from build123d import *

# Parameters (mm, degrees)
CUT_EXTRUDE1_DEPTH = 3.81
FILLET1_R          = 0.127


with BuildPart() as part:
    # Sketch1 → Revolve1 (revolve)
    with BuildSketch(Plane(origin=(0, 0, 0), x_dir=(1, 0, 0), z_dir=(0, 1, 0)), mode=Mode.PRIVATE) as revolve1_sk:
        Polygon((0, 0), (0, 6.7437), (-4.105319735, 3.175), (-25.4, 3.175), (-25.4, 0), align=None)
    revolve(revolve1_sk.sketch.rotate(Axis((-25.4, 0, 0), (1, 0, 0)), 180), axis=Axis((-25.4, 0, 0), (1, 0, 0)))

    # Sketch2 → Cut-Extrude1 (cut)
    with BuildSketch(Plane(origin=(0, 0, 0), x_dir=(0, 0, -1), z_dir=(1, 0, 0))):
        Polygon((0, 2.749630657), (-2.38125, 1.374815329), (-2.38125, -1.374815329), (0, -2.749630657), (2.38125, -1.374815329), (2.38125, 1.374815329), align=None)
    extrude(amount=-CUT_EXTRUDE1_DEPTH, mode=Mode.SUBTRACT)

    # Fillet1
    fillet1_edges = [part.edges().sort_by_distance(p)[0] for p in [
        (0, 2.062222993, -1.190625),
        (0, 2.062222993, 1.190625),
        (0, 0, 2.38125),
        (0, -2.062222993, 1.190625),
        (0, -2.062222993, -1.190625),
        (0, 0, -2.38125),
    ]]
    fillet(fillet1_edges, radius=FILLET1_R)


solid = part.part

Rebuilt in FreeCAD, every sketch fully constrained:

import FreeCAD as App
import Part
import Sketcher
from FreeCAD import Vector
Q = App.Units.Quantity


def edges_at(feature, points):
    """Names of the edges that pass closest to the given points."""
    edges = feature.Shape.Edges
    near = lambda p: min(range(len(edges)), key=lambda i: edges[i].distToShape(Part.Vertex(*p))[0])
    return sorted({f"Edge{near(p) + 1}" for p in points})

doc = App.newDocument("Part")
params = doc.addObject("Spreadsheet::Sheet", "Params")
for row, (alias, value) in enumerate([
    ("sketch1_width", "1 in"),
    ("sketch1_height", "0.125 in"),
    ("revolution_angle", "360 deg"),
    ("pocket1_length", "0.15 in"),
    ("fillet_radius", "0.005 in"),
], start=1):
    params.set(f"A{row}", alias)
    params.set(f"B{row}", "=" + value)
    params.setAlias(f"B{row}", alias)

body = doc.addObject("PartDesign::Body", "Body")

# Sketch on XZ plane
sketch1 = body.newObject("Sketcher::SketchObject", "Sketch")
sketch1.AttachmentSupport = (doc.getObject("XZ_Plane"), [""])
sketch1.MapMode = "FlatFace"
sketch1.addGeometry([
    Part.LineSegment(Vector(0, 0, 0), Vector(0, -6.7437, 0)),  # 0
    Part.LineSegment(Vector(0, -6.7437, 0), Vector(-4.10532, -3.175, 0)),  # 1
    Part.LineSegment(Vector(-4.10532, -3.175, 0), Vector(-25.4, -3.175, 0)),  # 2
    Part.LineSegment(Vector(-25.4, -3.175, 0), Vector(-25.4, 0, 0)),  # 3
    Part.LineSegment(Vector(-25.4, 0, 0), Vector(0, 0, 0)),  # 4
], False)
sketch1.addConstraint([
    Sketcher.Constraint("Coincident", 0, 2, 1, 1),
    Sketcher.Constraint("Coincident", 1, 2, 2, 1),
    Sketcher.Constraint("Coincident", 2, 2, 3, 1),
    Sketcher.Constraint("Coincident", 3, 2, 4, 1),
    Sketcher.Constraint("Coincident", 4, 2, 0, 1),
    Sketcher.Constraint("Vertical", 0),
    Sketcher.Constraint("Horizontal", 2),
    Sketcher.Constraint("Vertical", 3),
    Sketcher.Constraint("Horizontal", 4),
    Sketcher.Constraint("Coincident", 4, 2, -1, 1),
    Sketcher.Constraint("DistanceX", 4, 1, 4, 2, Q("1 in")),
    Sketcher.Constraint("Angle", 1, Q("139 deg")),
    Sketcher.Constraint("DistanceY", 3, 1, 3, 2, Q("0.125 in")),
    Sketcher.Constraint("DistanceY", 0, 2, 0, 1, Q("0.2655 in")),
])
sketch1.setExpression("Constraints[10]", "Params.sketch1_width")
sketch1.setExpression("Constraints[12]", "Params.sketch1_height")
revolution = body.newObject("PartDesign::Revolution", "Revolution")
revolution.Profile = sketch1
revolution.ReferenceAxis = (sketch1, ["H_Axis"])
revolution.setExpression("Angle", "Params.revolution_angle")

# Sketch on YZ plane
sketch2 = body.newObject("Sketcher::SketchObject", "Sketch001")
sketch2.AttachmentSupport = (doc.getObject("YZ_Plane"), [""])
sketch2.MapMode = "FlatFace"
sketch2.addGeometry([
    Part.LineSegment(Vector(2.749631, 0, 0), Vector(1.374815, 2.38125, 0)),  # 0
    Part.LineSegment(Vector(1.374815, 2.38125, 0), Vector(-1.374815, 2.38125, 0)),  # 1
    Part.LineSegment(Vector(-1.374815, 2.38125, 0), Vector(-2.749631, 0, 0)),  # 2
    Part.LineSegment(Vector(-2.749631, 0, 0), Vector(-1.374815, -2.38125, 0)),  # 3
    Part.LineSegment(Vector(-1.374815, -2.38125, 0), Vector(1.374815, -2.38125, 0)),  # 4
    Part.LineSegment(Vector(1.374815, -2.38125, 0), Vector(2.749631, 0, 0)),  # 5
], False)
sketch2.addConstraint([
    Sketcher.Constraint("Coincident", 0, 2, 1, 1),
    Sketcher.Constraint("Coincident", 1, 2, 2, 1),
    Sketcher.Constraint("Coincident", 2, 2, 3, 1),
    Sketcher.Constraint("Coincident", 3, 2, 4, 1),
    Sketcher.Constraint("Coincident", 4, 2, 5, 1),
    Sketcher.Constraint("Coincident", 5, 2, 0, 1),
    Sketcher.Constraint("Horizontal", 1),
    Sketcher.Constraint("Horizontal", 4),
    Sketcher.Constraint("Symmetric", 0, 2, 3, 2, -1, 1),
    Sketcher.Constraint("Symmetric", 2, 2, 5, 2, -1, 1),
    Sketcher.Constraint("PointOnObject", 2, 2, -1),
    Sketcher.Constraint("Parallel", 2, 5),
    Sketcher.Constraint("Vertical", 1, 2, 3, 2),
    Sketcher.Constraint("Angle", 0, Q("120 deg")),
    Sketcher.Constraint("DistanceY", -1, 1, 0, 2, Q("0.09375 in")),
    Sketcher.Constraint("DistanceX", 1, 2, 1, 1, 2.749631),
])
pocket1 = body.newObject("PartDesign::Pocket", "Pocket")
pocket1.Profile = sketch2
pocket1.setExpression("Length", "Params.pocket1_length")
doc.recompute()

fillet = body.newObject("PartDesign::Fillet", "Fillet")
fillet.Base = (pocket1, edges_at(pocket1, [
    (0, 2.062, -1.191),
    (0, 2.062, 1.191),
    (0, 0, 2.381),
    (0, -2.062, 1.191),
    (0, -2.062, -1.191),
    (0, 0, -2.381),
]))
fillet.setExpression("Radius", "Params.fillet_radius")

doc.recompute()
